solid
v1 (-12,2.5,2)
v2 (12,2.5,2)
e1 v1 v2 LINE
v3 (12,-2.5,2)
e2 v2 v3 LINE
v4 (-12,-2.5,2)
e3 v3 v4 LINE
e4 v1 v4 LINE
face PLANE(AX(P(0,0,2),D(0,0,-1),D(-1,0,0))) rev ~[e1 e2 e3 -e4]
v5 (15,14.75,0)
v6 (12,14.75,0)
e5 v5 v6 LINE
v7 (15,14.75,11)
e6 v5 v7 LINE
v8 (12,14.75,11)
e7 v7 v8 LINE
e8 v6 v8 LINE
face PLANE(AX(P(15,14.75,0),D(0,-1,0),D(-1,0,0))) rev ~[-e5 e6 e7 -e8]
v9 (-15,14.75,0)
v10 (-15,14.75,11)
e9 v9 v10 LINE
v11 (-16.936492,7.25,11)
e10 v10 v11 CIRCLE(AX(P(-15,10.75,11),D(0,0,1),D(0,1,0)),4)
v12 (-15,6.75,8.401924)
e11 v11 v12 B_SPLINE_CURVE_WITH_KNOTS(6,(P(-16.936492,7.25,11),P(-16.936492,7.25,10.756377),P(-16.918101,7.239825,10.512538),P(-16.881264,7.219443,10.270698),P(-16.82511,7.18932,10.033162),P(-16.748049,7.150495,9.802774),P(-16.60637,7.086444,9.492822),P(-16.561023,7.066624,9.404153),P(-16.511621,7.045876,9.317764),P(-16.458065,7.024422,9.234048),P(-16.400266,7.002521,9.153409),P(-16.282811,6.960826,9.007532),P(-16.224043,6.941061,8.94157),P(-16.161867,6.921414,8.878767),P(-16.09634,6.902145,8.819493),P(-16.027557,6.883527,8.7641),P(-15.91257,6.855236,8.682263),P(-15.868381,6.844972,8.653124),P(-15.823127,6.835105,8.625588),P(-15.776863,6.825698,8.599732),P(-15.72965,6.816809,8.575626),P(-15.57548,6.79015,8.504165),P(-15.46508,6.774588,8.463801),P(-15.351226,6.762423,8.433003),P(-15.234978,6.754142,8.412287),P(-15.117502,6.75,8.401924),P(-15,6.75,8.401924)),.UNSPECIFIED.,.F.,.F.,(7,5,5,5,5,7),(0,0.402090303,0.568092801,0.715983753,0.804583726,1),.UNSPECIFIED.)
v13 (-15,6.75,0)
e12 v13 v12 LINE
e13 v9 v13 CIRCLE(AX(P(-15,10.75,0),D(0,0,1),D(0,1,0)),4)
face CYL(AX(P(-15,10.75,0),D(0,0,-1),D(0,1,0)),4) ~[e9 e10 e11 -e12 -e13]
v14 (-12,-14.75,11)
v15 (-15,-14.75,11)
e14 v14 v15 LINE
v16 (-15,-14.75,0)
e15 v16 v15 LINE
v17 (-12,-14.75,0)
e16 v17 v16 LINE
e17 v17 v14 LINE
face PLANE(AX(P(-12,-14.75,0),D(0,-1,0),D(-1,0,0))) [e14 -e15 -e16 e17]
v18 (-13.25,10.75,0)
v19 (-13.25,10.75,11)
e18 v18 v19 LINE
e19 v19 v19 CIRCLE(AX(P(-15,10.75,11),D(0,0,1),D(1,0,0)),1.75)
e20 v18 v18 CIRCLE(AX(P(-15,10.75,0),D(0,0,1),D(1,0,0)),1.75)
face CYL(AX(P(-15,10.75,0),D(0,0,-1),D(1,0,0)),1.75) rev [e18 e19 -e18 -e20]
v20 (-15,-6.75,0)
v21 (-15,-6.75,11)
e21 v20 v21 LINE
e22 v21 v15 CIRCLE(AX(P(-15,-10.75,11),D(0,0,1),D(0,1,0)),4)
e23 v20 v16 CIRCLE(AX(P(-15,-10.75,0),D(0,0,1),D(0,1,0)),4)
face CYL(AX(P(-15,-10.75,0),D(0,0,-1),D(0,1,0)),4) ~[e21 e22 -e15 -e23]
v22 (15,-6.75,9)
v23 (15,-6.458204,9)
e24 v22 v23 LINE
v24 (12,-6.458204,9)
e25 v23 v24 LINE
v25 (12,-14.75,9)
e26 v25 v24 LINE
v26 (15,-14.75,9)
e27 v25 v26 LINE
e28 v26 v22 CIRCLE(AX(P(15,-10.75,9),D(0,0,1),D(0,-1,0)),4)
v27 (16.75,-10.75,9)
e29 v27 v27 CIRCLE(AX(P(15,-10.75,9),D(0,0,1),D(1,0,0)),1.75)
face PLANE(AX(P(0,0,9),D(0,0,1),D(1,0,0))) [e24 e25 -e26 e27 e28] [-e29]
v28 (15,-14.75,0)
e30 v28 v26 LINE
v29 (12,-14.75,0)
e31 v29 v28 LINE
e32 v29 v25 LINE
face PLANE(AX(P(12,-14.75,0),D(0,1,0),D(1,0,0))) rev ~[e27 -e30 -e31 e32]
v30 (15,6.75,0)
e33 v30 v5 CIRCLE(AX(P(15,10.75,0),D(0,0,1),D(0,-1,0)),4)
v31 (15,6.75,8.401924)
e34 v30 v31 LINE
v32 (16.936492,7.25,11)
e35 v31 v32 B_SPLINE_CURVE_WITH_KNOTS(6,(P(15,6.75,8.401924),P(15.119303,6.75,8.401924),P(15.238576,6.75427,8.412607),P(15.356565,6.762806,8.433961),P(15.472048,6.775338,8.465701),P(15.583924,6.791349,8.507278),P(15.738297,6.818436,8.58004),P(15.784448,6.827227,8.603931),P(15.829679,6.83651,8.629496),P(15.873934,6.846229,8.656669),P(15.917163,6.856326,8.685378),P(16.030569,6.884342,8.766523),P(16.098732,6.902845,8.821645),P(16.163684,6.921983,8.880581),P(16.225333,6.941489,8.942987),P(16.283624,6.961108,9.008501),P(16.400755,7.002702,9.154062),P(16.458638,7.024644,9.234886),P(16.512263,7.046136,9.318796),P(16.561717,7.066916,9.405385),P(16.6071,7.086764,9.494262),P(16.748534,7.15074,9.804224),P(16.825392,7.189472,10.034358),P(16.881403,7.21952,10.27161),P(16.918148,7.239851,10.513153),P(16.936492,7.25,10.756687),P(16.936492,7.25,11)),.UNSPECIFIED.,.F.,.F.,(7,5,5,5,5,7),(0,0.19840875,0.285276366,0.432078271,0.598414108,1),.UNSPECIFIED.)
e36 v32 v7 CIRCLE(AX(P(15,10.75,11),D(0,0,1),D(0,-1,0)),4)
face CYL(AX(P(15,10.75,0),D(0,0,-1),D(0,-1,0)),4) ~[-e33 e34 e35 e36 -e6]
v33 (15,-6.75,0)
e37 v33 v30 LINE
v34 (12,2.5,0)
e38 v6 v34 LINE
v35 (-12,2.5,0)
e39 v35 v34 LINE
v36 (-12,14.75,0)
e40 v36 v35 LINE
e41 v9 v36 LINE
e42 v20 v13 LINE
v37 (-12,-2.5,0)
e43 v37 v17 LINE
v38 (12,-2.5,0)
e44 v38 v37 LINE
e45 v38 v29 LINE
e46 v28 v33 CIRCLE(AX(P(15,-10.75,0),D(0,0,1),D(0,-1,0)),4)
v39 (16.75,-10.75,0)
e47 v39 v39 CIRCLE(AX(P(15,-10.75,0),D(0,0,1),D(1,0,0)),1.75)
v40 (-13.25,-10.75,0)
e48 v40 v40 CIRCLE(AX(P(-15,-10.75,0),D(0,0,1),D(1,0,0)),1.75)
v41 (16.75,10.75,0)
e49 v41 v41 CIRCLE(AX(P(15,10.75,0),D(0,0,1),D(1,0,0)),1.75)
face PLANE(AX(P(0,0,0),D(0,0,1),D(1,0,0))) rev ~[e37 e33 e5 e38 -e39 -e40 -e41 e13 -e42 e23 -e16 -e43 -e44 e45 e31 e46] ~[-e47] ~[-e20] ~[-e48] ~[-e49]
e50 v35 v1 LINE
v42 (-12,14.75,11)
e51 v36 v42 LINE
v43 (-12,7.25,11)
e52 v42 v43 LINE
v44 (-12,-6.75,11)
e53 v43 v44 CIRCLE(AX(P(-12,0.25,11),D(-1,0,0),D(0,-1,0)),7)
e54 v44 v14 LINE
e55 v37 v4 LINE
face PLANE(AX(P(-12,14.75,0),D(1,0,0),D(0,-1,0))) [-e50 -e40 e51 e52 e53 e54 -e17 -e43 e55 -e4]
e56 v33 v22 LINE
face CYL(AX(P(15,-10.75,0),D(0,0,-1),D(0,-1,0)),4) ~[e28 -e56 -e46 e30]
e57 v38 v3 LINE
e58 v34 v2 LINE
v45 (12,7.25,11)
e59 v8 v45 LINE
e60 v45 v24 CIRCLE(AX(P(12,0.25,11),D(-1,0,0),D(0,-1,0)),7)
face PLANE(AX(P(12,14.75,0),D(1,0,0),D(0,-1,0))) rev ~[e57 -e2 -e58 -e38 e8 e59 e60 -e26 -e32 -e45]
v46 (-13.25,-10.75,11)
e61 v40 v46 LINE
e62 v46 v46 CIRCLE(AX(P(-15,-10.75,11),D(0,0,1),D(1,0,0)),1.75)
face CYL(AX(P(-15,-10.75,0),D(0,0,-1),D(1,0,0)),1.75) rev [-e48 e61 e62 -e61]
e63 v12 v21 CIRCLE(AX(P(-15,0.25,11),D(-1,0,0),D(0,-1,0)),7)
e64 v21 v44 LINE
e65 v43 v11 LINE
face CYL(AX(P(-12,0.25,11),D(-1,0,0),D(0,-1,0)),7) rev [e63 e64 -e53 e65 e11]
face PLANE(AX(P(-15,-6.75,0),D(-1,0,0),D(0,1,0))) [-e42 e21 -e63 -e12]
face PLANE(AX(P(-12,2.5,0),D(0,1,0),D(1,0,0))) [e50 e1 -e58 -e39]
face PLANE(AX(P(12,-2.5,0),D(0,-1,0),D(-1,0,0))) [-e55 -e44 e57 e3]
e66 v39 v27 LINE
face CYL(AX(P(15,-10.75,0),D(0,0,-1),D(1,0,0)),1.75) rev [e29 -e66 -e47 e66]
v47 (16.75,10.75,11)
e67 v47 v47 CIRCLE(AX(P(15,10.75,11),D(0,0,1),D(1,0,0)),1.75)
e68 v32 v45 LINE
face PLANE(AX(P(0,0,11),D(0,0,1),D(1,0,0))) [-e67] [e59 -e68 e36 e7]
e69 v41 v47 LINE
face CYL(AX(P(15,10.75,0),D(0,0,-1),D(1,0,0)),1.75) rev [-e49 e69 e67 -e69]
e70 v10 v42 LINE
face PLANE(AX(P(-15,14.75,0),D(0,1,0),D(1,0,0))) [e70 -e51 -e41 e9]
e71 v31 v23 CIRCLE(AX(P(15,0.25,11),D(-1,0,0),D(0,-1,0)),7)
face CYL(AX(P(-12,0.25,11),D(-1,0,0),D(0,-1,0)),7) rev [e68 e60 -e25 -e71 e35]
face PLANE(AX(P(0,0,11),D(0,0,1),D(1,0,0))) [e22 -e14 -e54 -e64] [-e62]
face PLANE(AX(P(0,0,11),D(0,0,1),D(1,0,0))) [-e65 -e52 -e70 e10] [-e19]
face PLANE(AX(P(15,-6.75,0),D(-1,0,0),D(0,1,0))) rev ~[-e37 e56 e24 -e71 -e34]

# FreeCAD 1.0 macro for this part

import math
import FreeCAD as App
import Part
import Sketcher

doc = App.newDocument("Part")
body = doc.addObject("PartDesign::Body", "Body")
body.AllowCompound = True

sketch1 = body.newObject("Sketcher::SketchObject", "Sketch")
sketch1.AttachmentSupport = (doc.getObject("XY_Plane"), [""])
sketch1.MapMode = "FlatFace"
sketch1.addGeometry([
    Part.LineSegment(App.Vector(15, -6.75, 0), App.Vector(15, 6.75, 0)),
    Part.ArcOfCircle(Part.Circle(App.Vector(15, 10.75, 0), App.Vector(0, 0, 1), 4), math.radians(-90), math.radians(90)),
    Part.LineSegment(App.Vector(15, 14.75, 0), App.Vector(12, 14.75, 0)),
    Part.LineSegment(App.Vector(12, 14.75, 0), App.Vector(12, -14.75, 0)),
    Part.LineSegment(App.Vector(12, -14.75, 0), App.Vector(15, -14.75, 0)),
    Part.ArcOfCircle(Part.Circle(App.Vector(15, -10.75, 0), App.Vector(0, 0, 1), 4), math.radians(-90), math.radians(90)),
    Part.Circle(App.Vector(15, -10.75, 0), App.Vector(0, 0, 1), 1.75),
    Part.Circle(App.Vector(15, 10.75, 0), App.Vector(0, 0, 1), 1.75),
    Part.LineSegment(App.Vector(-12, 14.75, 0), App.Vector(-15, 14.75, 0)),
    Part.ArcOfCircle(Part.Circle(App.Vector(-15, 10.75, 0), App.Vector(0, 0, 1), 4), math.radians(90), math.radians(270)),
    Part.LineSegment(App.Vector(-15, 6.75, 0), App.Vector(-15, -6.75, 0)),
    Part.ArcOfCircle(Part.Circle(App.Vector(-15, -10.75, 0), App.Vector(0, 0, 1), 4), math.radians(90), math.radians(270)),
    Part.LineSegment(App.Vector(-15, -14.75, 0), App.Vector(-12, -14.75, 0)),
    Part.LineSegment(App.Vector(-12, -14.75, 0), App.Vector(-12, 14.75, 0)),
    Part.Circle(App.Vector(-15, -10.75, 0), App.Vector(0, 0, 1), 1.75),
    Part.Circle(App.Vector(-15, 10.75, 0), App.Vector(0, 0, 1), 1.75),
], False)
sketch1.addConstraint([
    Sketcher.Constraint("Coincident", 0, 2, 1, 1),
    Sketcher.Constraint("Tangent", 1, 2, 2, 1),
    Sketcher.Constraint("Coincident", 2, 2, 3, 1),
    Sketcher.Constraint("Coincident", 3, 2, 4, 1),
    Sketcher.Constraint("Tangent", 4, 2, 5, 1),
    Sketcher.Constraint("Coincident", 5, 2, 0, 1),
    Sketcher.Constraint("Tangent", 8, 2, 9, 1),
    Sketcher.Constraint("Coincident", 9, 2, 10, 1),
    Sketcher.Constraint("Coincident", 10, 2, 11, 1),
    Sketcher.Constraint("Tangent", 11, 2, 12, 1),
    Sketcher.Constraint("Coincident", 12, 2, 13, 1),
    Sketcher.Constraint("Coincident", 13, 2, 8, 1),
    Sketcher.Constraint("Vertical", 0),
    Sketcher.Constraint("Horizontal", 2),
    Sketcher.Constraint("Vertical", 3),
    Sketcher.Constraint("Horizontal", 4),
    Sketcher.Constraint("Horizontal", 8),
    Sketcher.Constraint("Vertical", 10),
    Sketcher.Constraint("Horizontal", 12),
    Sketcher.Constraint("Vertical", 13),
    Sketcher.Constraint("Coincident", 6, 3, 5, 3),
    Sketcher.Constraint("Coincident", 7, 3, 1, 3),
    Sketcher.Constraint("Coincident", 14, 3, 11, 3),
    Sketcher.Constraint("Coincident", 15, 3, 9, 3),
    Sketcher.Constraint("Equal", 1, 5),
    Sketcher.Constraint("Equal", 6, 7),
    Sketcher.Constraint("Equal", 5, 9),
    Sketcher.Constraint("Equal", 9, 11),
    Sketcher.Constraint("Equal", 7, 14),
    Sketcher.Constraint("Equal", 14, 15),
    Sketcher.Constraint("Symmetric", 5, 3, 9, 3, -1, 1),
    Sketcher.Constraint("Symmetric", 1, 3, 11, 3, -1, 1),
    Sketcher.Constraint("Symmetric", 1, 3, 9, 3, -2),
    Sketcher.Constraint("Vertical", 7, 3, 0, 2),
    Sketcher.Constraint("Vertical", 8, 2, 9, 2),
    Sketcher.Constraint("Equal", 4, 8),
    Sketcher.Constraint("DistanceX", 2, 2, 2, 1, 3.0),
    Sketcher.Constraint("Radius", 1, 4.0),
    Sketcher.Constraint("Diameter", 6, 3.5),
    Sketcher.Constraint("DistanceY", 0, 1, 0, 2, 13.5),
    Sketcher.Constraint("DistanceX", -1, 1, 1, 3, 15.0),
])
pad1 = body.newObject("PartDesign::Pad", "Pad")
pad1.Profile = sketch1
pad1.Length = 11

sketch2 = body.newObject("Sketcher::SketchObject", "Sketch001")
sketch2.AttachmentSupport = (doc.getObject("YZ_Plane"), [""])
sketch2.MapMode = "FlatFace"
sketch2.AttachmentOffset = App.Placement(App.Vector(0, 0, -12), App.Rotation())
sketch2.addGeometry([
    Part.LineSegment(App.Vector(7.25, 11, 0), App.Vector(-6.75, 11, 0)),
    Part.ArcOfCircle(Part.Circle(App.Vector(0.25, 11, 0), App.Vector(0, 0, 1), 7), math.radians(180), math.radians(360)),
], False)
sketch2.addConstraint([
    Sketcher.Constraint("Coincident", 0, 1, 1, 2),
    Sketcher.Constraint("Coincident", 1, 1, 0, 2),
    Sketcher.Constraint("Horizontal", 0),
    Sketcher.Constraint("Horizontal", 1, 3, 0, 1),
    Sketcher.Constraint("Radius", 1, 7.0),
    Sketcher.Constraint("DistanceY", -1, 1, 1, 3, 11.0),
    Sketcher.Constraint("DistanceX", -1, 1, 1, 3, 0.25),
])
pocket1 = body.newObject("PartDesign::Pocket", "Pocket")
pocket1.Profile = sketch2
pocket1.Type = "ThroughAll"
pocket1.Midplane = True

sketch3 = body.newObject("Sketcher::SketchObject", "Sketch002")
sketch3.AttachmentSupport = (doc.getObject("XY_Plane"), [""])
sketch3.MapMode = "FlatFace"
sketch3.addGeometry([
    Part.LineSegment(App.Vector(-12, -2.5, 0), App.Vector(-12, 2.5, 0)),
    Part.LineSegment(App.Vector(-12, 2.5, 0), App.Vector(12, 2.5, 0)),
    Part.LineSegment(App.Vector(12, 2.5, 0), App.Vector(12, -2.5, 0)),
    Part.LineSegment(App.Vector(12, -2.5, 0), App.Vector(-12, -2.5, 0)),
], False)
sketch3.addConstraint([
    Sketcher.Constraint("Coincident", 0, 2, 1, 1),
    Sketcher.Constraint("Coincident", 1, 2, 2, 1),
    Sketcher.Constraint("Coincident", 2, 2, 3, 1),
    Sketcher.Constraint("Coincident", 3, 2, 0, 1),
    Sketcher.Constraint("Vertical", 0),
    Sketcher.Constraint("Horizontal", 1),
    Sketcher.Constraint("Vertical", 2),
    Sketcher.Constraint("Horizontal", 3),
    Sketcher.Constraint("Symmetric", 0, 2, 2, 2, -1, 1),
    Sketcher.Constraint("DistanceY", 0, 1, 0, 2, 5.0),
    Sketcher.Constraint("DistanceX", 1, 1, 1, 2, 24.0),
])
pad2 = body.newObject("PartDesign::Pad", "Pad001")
pad2.Profile = sketch3
pad2.Length = 2

sketch4 = body.newObject("Sketcher::SketchObject", "Sketch003")
sketch4.AttachmentSupport = (doc.getObject("XY_Plane"), [""])
sketch4.MapMode = "FlatFace"
sketch4.AttachmentOffset = App.Placement(App.Vector(0, 0, 11), App.Rotation())
sketch4.addGeometry([
    Part.ArcOfCircle(Part.Circle(App.Vector(15, -10.75, 0), App.Vector(0, 0, 1), 4), math.radians(-90), math.radians(90)),
    Part.LineSegment(App.Vector(15, -6.75, 0), App.Vector(15, -2.5, 0)),
    Part.LineSegment(App.Vector(15, -2.5, 0), App.Vector(12, -2.5, 0)),
    Part.LineSegment(App.Vector(12, -2.5, 0), App.Vector(12, -14.75, 0)),
    Part.LineSegment(App.Vector(12, -14.75, 0), App.Vector(15, -14.75, 0)),
    Part.Circle(App.Vector(15, -10.75, 0), App.Vector(0, 0, 1), 1.75),
], False)
sketch4.addConstraint([
    Sketcher.Constraint("Coincident", 0, 2, 1, 1),
    Sketcher.Constraint("Coincident", 1, 2, 2, 1),
    Sketcher.Constraint("Coincident", 2, 2, 3, 1),
    Sketcher.Constraint("Coincident", 3, 2, 4, 1),
    Sketcher.Constraint("Tangent", 4, 2, 0, 1),
    Sketcher.Constraint("Vertical", 1),
    Sketcher.Constraint("Horizontal", 2),
    Sketcher.Constraint("Vertical", 3),
    Sketcher.Constraint("Horizontal", 4),
    Sketcher.Constraint("Coincident", 5, 3, 0, 3),
    Sketcher.Constraint("Vertical", 5, 3, 0, 2),
    Sketcher.Constraint("Radius", 0, 4.0),
    Sketcher.Constraint("Diameter", 5, 3.5),
    Sketcher.Constraint("DistanceX", 2, 2, 2, 1, 3.0),
    Sketcher.Constraint("DistanceX", -1, 1, 0, 3, 15.0),
    Sketcher.Constraint("DistanceY", 1, 1, 1, 2, 4.25),
    Sketcher.Constraint("DistanceY", 1, 2, -1, 1, 2.5),
])
pocket2 = body.newObject("PartDesign::Pocket", "Pocket001")
pocket2.Profile = sketch4
pocket2.Length = 2

doc.recompute()
